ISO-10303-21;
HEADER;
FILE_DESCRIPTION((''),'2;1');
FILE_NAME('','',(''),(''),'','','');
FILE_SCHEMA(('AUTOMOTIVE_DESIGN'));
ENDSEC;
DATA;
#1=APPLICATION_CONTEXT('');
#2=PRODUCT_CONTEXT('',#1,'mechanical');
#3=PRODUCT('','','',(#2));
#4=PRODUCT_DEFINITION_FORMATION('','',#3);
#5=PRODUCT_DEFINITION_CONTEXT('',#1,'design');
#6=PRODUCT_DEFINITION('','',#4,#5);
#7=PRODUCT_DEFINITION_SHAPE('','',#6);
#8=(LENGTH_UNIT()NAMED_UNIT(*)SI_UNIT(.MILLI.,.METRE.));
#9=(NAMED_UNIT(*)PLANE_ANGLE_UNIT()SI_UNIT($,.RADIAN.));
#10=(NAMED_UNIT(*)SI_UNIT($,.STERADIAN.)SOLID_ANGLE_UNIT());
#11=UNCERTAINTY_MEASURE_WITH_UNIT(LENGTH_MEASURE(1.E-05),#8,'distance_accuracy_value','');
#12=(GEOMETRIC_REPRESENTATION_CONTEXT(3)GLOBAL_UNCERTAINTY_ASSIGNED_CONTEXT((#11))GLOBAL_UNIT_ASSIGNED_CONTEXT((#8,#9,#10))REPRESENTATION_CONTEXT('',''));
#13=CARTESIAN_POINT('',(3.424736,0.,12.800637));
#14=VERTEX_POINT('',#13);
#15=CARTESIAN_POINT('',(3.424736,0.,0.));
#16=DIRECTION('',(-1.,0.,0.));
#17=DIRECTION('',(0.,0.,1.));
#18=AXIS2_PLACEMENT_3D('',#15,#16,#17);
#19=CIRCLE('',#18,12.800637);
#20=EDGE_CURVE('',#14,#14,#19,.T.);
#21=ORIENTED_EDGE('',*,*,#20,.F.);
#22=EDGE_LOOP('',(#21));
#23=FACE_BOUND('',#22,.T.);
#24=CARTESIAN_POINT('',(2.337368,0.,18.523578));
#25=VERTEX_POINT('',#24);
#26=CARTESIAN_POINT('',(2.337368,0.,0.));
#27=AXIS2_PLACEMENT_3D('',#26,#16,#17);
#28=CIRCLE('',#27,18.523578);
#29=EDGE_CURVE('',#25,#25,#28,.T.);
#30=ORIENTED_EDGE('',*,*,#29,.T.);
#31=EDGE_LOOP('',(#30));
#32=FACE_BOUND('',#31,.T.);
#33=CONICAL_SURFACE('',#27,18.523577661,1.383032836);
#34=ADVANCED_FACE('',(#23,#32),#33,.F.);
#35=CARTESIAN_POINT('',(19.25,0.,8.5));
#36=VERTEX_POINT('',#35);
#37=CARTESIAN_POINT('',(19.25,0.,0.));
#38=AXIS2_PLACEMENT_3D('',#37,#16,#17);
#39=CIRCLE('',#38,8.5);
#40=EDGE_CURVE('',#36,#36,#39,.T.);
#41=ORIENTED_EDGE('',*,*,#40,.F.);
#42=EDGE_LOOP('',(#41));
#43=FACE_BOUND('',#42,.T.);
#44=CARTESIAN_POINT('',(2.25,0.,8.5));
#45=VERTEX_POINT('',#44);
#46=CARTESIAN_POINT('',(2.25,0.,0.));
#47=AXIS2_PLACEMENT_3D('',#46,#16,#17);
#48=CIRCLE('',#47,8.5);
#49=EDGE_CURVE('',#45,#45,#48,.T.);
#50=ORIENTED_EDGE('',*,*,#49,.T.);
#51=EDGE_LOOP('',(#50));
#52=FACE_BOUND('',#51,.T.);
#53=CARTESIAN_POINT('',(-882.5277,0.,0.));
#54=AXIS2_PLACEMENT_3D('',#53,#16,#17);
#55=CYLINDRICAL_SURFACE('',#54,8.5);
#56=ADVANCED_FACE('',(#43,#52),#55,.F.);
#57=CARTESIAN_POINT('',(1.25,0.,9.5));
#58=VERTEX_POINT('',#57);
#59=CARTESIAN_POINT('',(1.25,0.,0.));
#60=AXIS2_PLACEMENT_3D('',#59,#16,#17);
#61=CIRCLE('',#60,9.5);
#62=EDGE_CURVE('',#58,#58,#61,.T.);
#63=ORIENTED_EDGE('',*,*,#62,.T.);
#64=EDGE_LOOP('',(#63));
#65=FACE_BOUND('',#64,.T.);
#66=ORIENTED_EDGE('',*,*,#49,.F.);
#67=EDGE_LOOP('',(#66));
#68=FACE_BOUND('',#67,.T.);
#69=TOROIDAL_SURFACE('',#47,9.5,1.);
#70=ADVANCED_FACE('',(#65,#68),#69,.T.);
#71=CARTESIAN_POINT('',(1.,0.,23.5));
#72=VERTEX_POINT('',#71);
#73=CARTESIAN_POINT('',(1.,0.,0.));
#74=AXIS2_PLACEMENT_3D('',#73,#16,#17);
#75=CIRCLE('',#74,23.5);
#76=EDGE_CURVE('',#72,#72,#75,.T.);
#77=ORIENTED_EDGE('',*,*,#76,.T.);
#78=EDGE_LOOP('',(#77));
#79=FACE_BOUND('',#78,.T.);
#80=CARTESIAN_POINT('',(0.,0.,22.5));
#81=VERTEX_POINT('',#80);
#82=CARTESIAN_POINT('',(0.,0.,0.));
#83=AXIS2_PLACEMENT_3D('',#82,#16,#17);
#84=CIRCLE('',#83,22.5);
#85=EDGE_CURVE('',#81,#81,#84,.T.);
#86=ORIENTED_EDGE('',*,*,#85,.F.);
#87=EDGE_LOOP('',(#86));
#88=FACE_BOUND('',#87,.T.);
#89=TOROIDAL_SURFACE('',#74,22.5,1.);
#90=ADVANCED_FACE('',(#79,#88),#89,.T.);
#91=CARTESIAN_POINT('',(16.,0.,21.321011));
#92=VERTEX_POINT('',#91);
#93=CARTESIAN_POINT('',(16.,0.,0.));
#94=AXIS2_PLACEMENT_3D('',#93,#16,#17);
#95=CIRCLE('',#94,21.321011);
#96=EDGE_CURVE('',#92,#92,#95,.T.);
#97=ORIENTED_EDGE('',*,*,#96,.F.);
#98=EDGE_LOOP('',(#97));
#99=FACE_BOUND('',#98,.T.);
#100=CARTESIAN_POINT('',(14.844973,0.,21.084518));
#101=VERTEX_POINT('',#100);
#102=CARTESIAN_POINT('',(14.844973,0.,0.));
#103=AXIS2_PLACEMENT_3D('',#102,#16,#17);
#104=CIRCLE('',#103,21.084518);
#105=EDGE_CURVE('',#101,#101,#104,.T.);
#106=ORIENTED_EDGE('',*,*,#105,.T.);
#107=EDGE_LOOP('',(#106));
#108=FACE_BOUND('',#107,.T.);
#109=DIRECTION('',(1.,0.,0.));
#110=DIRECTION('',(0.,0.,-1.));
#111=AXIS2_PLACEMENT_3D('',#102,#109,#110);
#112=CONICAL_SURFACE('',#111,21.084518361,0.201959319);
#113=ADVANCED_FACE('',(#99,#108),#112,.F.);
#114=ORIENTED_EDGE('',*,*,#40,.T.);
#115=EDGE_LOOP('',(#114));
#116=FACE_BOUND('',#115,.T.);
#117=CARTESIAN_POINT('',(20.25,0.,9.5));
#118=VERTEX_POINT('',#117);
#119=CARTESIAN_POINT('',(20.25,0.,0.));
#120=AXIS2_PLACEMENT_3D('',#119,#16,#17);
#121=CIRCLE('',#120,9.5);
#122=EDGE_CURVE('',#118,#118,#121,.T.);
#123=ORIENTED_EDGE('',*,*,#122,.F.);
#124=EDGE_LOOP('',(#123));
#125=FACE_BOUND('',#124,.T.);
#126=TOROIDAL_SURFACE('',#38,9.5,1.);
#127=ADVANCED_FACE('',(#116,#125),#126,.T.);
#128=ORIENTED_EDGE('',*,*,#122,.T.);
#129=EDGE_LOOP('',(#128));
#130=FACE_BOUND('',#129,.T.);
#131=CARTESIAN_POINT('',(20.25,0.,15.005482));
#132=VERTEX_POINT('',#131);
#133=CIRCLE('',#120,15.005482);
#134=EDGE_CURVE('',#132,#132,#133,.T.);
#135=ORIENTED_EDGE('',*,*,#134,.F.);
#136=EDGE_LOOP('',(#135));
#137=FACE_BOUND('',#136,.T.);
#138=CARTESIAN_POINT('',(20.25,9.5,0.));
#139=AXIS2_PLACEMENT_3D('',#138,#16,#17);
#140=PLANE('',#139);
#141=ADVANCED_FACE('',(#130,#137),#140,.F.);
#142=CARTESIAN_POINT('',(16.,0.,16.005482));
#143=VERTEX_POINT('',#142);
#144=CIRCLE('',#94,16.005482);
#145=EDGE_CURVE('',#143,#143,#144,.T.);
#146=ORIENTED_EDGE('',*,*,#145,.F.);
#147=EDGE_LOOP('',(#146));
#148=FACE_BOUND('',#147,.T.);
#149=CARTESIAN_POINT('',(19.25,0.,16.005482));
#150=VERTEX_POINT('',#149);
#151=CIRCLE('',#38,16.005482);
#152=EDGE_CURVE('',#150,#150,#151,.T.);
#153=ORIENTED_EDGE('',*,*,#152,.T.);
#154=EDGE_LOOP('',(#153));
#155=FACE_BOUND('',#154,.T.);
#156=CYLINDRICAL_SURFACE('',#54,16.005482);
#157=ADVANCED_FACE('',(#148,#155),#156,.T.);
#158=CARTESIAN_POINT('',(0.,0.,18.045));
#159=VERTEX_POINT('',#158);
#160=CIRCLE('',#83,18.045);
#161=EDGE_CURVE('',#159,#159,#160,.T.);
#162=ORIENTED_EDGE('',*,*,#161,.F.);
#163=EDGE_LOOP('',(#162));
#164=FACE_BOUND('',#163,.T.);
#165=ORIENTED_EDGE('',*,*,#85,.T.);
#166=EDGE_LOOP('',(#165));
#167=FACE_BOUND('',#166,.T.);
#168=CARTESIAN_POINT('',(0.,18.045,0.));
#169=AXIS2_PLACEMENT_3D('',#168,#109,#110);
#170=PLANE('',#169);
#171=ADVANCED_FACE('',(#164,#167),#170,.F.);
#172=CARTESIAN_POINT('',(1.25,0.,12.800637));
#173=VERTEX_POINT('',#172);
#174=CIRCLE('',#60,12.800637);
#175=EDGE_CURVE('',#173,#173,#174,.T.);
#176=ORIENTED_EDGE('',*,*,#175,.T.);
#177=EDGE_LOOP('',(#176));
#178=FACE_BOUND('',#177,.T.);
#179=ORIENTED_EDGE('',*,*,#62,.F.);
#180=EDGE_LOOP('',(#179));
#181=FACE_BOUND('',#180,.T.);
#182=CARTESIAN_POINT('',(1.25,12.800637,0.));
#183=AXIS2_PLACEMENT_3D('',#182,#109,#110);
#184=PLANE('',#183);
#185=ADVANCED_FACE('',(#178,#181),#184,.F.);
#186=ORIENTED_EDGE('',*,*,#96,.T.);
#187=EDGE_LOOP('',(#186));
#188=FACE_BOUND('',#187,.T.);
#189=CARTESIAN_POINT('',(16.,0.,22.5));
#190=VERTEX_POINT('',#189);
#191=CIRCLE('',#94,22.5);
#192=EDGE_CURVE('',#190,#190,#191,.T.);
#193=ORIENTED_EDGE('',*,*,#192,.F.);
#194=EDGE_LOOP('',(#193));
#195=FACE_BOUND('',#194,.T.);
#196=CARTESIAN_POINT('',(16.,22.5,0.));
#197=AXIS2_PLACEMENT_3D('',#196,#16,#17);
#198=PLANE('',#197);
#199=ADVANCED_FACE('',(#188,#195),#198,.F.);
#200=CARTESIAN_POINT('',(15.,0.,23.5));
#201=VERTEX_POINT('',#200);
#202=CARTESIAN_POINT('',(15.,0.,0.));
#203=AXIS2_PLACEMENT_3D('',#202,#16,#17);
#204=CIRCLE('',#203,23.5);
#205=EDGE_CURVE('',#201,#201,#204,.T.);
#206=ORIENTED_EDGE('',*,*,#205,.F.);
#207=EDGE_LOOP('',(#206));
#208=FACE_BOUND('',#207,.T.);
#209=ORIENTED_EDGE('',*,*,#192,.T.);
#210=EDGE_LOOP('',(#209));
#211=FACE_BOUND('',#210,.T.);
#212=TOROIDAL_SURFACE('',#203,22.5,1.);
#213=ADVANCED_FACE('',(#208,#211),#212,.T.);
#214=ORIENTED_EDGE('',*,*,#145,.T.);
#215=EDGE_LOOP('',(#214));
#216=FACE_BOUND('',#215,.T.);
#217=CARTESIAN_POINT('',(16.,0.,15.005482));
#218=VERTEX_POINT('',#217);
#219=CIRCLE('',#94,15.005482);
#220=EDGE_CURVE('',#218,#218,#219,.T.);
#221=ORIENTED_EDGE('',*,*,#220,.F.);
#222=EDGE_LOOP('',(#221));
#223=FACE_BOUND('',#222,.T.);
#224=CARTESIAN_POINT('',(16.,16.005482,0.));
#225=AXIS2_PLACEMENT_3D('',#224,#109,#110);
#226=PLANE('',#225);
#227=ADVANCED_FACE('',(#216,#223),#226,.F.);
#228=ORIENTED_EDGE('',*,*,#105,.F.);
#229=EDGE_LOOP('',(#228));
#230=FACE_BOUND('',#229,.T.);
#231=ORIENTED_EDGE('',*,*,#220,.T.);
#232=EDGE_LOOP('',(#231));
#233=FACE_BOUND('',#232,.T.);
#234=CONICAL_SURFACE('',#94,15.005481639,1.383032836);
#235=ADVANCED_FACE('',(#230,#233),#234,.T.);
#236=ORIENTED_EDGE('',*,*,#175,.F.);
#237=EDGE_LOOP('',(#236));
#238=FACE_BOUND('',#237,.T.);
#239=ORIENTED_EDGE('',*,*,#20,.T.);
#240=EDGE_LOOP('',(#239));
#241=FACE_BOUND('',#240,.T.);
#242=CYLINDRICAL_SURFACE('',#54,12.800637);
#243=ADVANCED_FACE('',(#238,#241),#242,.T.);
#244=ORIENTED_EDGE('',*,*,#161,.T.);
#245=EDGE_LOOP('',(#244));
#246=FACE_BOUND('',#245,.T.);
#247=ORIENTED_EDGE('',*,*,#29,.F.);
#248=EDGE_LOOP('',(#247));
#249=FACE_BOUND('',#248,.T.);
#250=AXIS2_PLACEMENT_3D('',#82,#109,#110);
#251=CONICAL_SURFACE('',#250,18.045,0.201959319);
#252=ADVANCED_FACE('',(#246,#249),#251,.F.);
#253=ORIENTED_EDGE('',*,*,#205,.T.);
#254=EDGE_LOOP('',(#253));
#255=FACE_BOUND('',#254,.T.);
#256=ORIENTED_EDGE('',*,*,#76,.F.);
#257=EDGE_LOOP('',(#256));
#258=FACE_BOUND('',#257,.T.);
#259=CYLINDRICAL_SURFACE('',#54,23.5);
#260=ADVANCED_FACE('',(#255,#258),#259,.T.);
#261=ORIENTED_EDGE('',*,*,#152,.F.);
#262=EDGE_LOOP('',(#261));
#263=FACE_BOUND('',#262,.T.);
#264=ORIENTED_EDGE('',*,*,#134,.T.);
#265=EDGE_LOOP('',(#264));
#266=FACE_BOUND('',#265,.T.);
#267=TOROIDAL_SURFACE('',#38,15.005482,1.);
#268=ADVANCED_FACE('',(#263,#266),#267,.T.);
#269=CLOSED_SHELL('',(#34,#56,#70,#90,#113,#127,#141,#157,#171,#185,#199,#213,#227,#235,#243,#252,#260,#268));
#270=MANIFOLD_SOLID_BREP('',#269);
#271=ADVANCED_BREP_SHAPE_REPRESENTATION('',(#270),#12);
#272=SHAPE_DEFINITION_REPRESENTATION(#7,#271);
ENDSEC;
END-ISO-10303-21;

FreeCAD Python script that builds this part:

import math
import FreeCAD as App
import Part
import Sketcher
from FreeCAD import Vector
Q = App.Units.Quantity

doc = App.newDocument("Part")
params = doc.addObject("Spreadsheet::Sheet", "Params")
for row, (alias, value) in enumerate([
    ("sketch1_radius", "1 mm"),
    ("sketch1_radius2", "1 mm"),
    ("sketch1_radius3", "1 mm"),
    ("sketch1_radius4", "1 mm"),
    ("sketch1_radius5", "1 mm"),
    ("revolution_angle", "360 deg"),
], start=1):
    params.set(f"A{row}", alias)
    params.set(f"B{row}", "=" + value)
    params.setAlias(f"B{row}", alias)

body = doc.addObject("PartDesign::Body", "Body")

# Sketch on XY plane
sketch1 = body.newObject("Sketcher::SketchObject", "Sketch")
sketch1.AttachmentSupport = (doc.getObject("XY_Plane"), [""])
sketch1.MapMode = "FlatFace"
sketch1.addGeometry(Part.LineSegment(Vector(0, 18.045, 0), Vector(2.337368, 18.523578, 0)), False)
sketch1.addGeometry(Part.LineSegment(Vector(2.337368, 18.523578, 0), Vector(3.424736, 12.800637, 0)), False)
sketch1.addGeometry(Part.LineSegment(Vector(3.424736, 12.800637, 0), Vector(1.25, 12.800637, 0)), False)
sketch1.addGeometry(Part.LineSegment(Vector(1.25, 12.800637, 0), Vector(1.25, 9.5, 0)), False)
sketch1.addGeometry(Part.ArcOfCircle(Part.Circle(Vector(2.25, 9.5, 0), Vector(0, 0, 1), 1), math.radians(-180), math.radians(-90)), False)
sketch1.addGeometry(Part.LineSegment(Vector(2.25, 8.5, 0), Vector(19.25, 8.5, 0)), False)
sketch1.addGeometry(Part.ArcOfCircle(Part.Circle(Vector(19.25, 9.5, 0), Vector(0, 0, 1), 1), math.radians(-90), math.radians(0)), False)
sketch1.addGeometry(Part.LineSegment(Vector(20.25, 9.5, 0), Vector(20.25, 15.005482, 0)), False)
sketch1.addGeometry(Part.ArcOfCircle(Part.Circle(Vector(19.25, 15.005482, 0), Vector(0, 0, 1), 1), math.radians(0), math.radians(90)), False)
sketch1.addGeometry(Part.LineSegment(Vector(19.25, 16.005482, 0), Vector(16, 16.005482, 0)), False)
sketch1.addGeometry(Part.LineSegment(Vector(16, 16.005482, 0), Vector(16, 15.005482, 0)), False)
sketch1.addGeometry(Part.LineSegment(Vector(16, 15.005482, 0), Vector(14.844973, 21.084518, 0)), False)
sketch1.addGeometry(Part.LineSegment(Vector(14.844973, 21.084518, 0), Vector(16, 21.321011, 0)), False)
sketch1.addGeometry(Part.LineSegment(Vector(16, 21.321011, 0), Vector(16, 22.5, 0)), False)
sketch1.addGeometry(Part.ArcOfCircle(Part.Circle(Vector(15, 22.5, 0), Vector(0, 0, 1), 1), math.radians(0), math.radians(90)), False)
sketch1.addGeometry(Part.LineSegment(Vector(15, 23.5, 0), Vector(1, 23.5, 0)), False)
sketch1.addGeometry(Part.ArcOfCircle(Part.Circle(Vector(1, 22.5, 0), Vector(0, 0, 1), 1), math.radians(90), math.radians(180)), False)
sketch1.addGeometry(Part.LineSegment(Vector(0, 22.5, 0), Vector(0, 18.045, 0)), False)
sketch1.addConstraint(Sketcher.Constraint("Coincident", 0, 2, 1, 1))
sketch1.addConstraint(Sketcher.Constraint("Coincident", 1, 2, 2, 1))
sketch1.addConstraint(Sketcher.Constraint("Coincident", 2, 2, 3, 1))
sketch1.addConstraint(Sketcher.Constraint("Coincident", 3, 2, 4, 1))
sketch1.addConstraint(Sketcher.Constraint("Coincident", 4, 2, 5, 1))
sketch1.addConstraint(Sketcher.Constraint("Coincident", 5, 2, 6, 1))
sketch1.addConstraint(Sketcher.Constraint("Coincident", 6, 2, 7, 1))
sketch1.addConstraint(Sketcher.Constraint("Coincident", 7, 2, 8, 1))
sketch1.addConstraint(Sketcher.Constraint("Coincident", 8, 2, 9, 1))
sketch1.addConstraint(Sketcher.Constraint("Coincident", 9, 2, 10, 1))
sketch1.addConstraint(Sketcher.Constraint("Coincident", 10, 2, 11, 1))
sketch1.addConstraint(Sketcher.Constraint("Coincident", 11, 2, 12, 1))
sketch1.addConstraint(Sketcher.Constraint("Coincident", 12, 2, 13, 1))
sketch1.addConstraint(Sketcher.Constraint("Coincident", 13, 2, 14, 1))
sketch1.addConstraint(Sketcher.Constraint("Coincident", 14, 2, 15, 1))
sketch1.addConstraint(Sketcher.Constraint("Coincident", 15, 2, 16, 1))
sketch1.addConstraint(Sketcher.Constraint("Coincident", 16, 2, 17, 1))
sketch1.addConstraint(Sketcher.Constraint("Coincident", 17, 2, 0, 1))
sketch1.addConstraint(Sketcher.Constraint("Horizontal", 2))
sketch1.addConstraint(Sketcher.Constraint("Vertical", 3))
sketch1.addConstraint(Sketcher.Constraint("Horizontal", 5))
sketch1.addConstraint(Sketcher.Constraint("Vertical", 7))
sketch1.addConstraint(Sketcher.Constraint("Horizontal", 9))
sketch1.addConstraint(Sketcher.Constraint("Vertical", 10))
sketch1.addConstraint(Sketcher.Constraint("Vertical", 13))
sketch1.addConstraint(Sketcher.Constraint("Horizontal", 15))
sketch1.addConstraint(Sketcher.Constraint("Vertical", 17))
sketch1.addConstraint(Sketcher.Constraint("PointOnObject", 16, 2, -2))
sketch1.addConstraint(Sketcher.Constraint("Radius", 4, Q("1 mm")))
sketch1.addConstraint(Sketcher.Constraint("Radius", 6, Q("1 mm")))
sketch1.addConstraint(Sketcher.Constraint("Radius", 8, Q("1 mm")))
sketch1.addConstraint(Sketcher.Constraint("Radius", 14, Q("1 mm")))
sketch1.addConstraint(Sketcher.Constraint("Radius", 16, Q("1 mm")))
sketch1.addConstraint(Sketcher.Constraint("DistanceX", 5, 1, 5, 2, Q("17 mm")))
sketch1.addConstraint(Sketcher.Constraint("DistanceX", 15, 2, 15, 1, Q("14 mm")))
sketch1.addConstraint(Sketcher.Constraint("DistanceY", 10, 2, 10, 1, Q("1 mm")))
sketch1.addConstraint(Sketcher.Constraint("DistanceX", -1, 1, 14, 3, Q("15 mm")))
sketch1.addConstraint(Sketcher.Constraint("DistanceX", -1, 1, 9, 2, Q("16 mm")))
sketch1.addConstraint(Sketcher.Constraint("DistanceX", -1, 1, 14, 2, Q("15 mm")))
sketch1.addConstraint(Sketcher.Constraint("DistanceX", 4, 3, 6, 3, Q("17 mm")))
sketch1.addConstraint(Sketcher.Constraint("DistanceY", 6, 3, 14, 3, Q("13 mm")))
sketch1.addConstraint(Sketcher.Constraint("DistanceY", 3, 2, 16, 3, Q("13 mm")))
sketch1.addConstraint(Sketcher.Constraint("DistanceX", 3, 2, 4, 2, Q("1 mm")))
sketch1.addConstraint(Sketcher.Constraint("DistanceY", 5, 2, 6, 2, Q("1 mm")))
sketch1.addConstraint(Sketcher.Constraint("DistanceX", 8, 2, 7, 2, Q("1 mm")))
sketch1.addConstraint(Sketcher.Constraint("DistanceY", 7, 2, 8, 2, Q("1 mm")))
sketch1.addConstraint(Sketcher.Constraint("DistanceY", 13, 2, 14, 2, Q("1 mm")))
sketch1.addConstraint(Sketcher.Constraint("DistanceY", 16, 2, 15, 2, Q("1 mm")))
sketch1.addConstraint(Sketcher.Constraint("DistanceX", 9, 2, 9, 1, Q("3.25 mm")))
sketch1.addConstraint(Sketcher.Constraint("DistanceY", -1, 1, 4, 3, Q("9.5 mm")))
sketch1.addConstraint(Sketcher.Constraint("DistanceY", 17, 2, 17, 1, Q("4.455 mm")))
sketch1.addConstraint(Sketcher.Constraint("DistanceY", 7, 1, 7, 2, Q("5.505482 mm")))
sketch1.addConstraint(Sketcher.Constraint("DistanceY", 13, 1, 13, 2, Q("1.178989 mm")))
sketch1.addConstraint(Sketcher.Constraint("Distance", 0, Q("2.385859 mm")))
sketch1.addConstraint(Sketcher.Constraint("Distance", 12, Q("1.178989 mm")))
sketch1.addConstraint(Sketcher.Constraint("DistanceX", 2, 2, 2, 1, Q("2.174736 mm")))
sketch1.addConstraint(Sketcher.Constraint("DistanceY", 3, 2, 3, 1, Q("3.300637 mm")))
sketch1.addConstraint(Sketcher.Constraint("DistanceY", -1, 1, 11, 2, Q("21.084518 mm")))
sketch1.addConstraint(Sketcher.Constraint("DistanceY", 1, 2, 0, 2, Q("5.722941 mm")))
sketch1.setExpression("Constraints[28]", "Params.sketch1_radius")
sketch1.setExpression("Constraints[29]", "Params.sketch1_radius2")
sketch1.setExpression("Constraints[30]", "Params.sketch1_radius3")
sketch1.setExpression("Constraints[31]", "Params.sketch1_radius4")
sketch1.setExpression("Constraints[32]", "Params.sketch1_radius5")
revolution = body.newObject("PartDesign::Revolution", "Revolution")
revolution.Profile = sketch1
revolution.ReferenceAxis = (sketch1, ["H_Axis"])
revolution.setExpression("Angle", "Params.revolution_angle")

doc.recompute()
